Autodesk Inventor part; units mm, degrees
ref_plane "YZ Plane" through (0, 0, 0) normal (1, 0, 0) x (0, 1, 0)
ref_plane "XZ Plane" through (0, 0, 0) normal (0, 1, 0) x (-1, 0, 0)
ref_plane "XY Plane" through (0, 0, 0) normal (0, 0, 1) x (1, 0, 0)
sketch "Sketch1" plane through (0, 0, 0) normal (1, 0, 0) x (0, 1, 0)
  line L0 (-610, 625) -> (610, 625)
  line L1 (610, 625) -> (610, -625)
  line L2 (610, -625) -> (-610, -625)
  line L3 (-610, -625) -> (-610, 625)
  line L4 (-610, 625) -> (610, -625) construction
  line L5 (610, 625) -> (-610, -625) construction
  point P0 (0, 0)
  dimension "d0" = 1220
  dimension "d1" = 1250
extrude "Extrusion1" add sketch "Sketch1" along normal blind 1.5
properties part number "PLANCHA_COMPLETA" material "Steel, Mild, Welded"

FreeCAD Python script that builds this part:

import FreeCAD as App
import Part
import Sketcher

doc = App.newDocument("Part")
body = doc.addObject("PartDesign::Body", "Body")

# Sketch on YZ plane
sketch1 = body.newObject("Sketcher::SketchObject", "Sketch")
sketch1.AttachmentSupport = (doc.getObject("YZ_Plane"), [""])
sketch1.MapMode = "FlatFace"
sketch1.addGeometry([
    Part.LineSegment(App.Vector(610, 625, 0), App.Vector(-610, 625, 0)),
    Part.LineSegment(App.Vector(-610, 625, 0), App.Vector(-610, -625, 0)),
    Part.LineSegment(App.Vector(-610, -625, 0), App.Vector(610, -625, 0)),
    Part.LineSegment(App.Vector(610, -625, 0), App.Vector(610, 625, 0)),
], False)
sketch1.addConstraint([
    Sketcher.Constraint("Coincident", 0, 2, 1, 1),
    Sketcher.Constraint("Coincident", 1, 2, 2, 1),
    Sketcher.Constraint("Coincident", 2, 2, 3, 1),
    Sketcher.Constraint("Coincident", 3, 2, 0, 1),
    Sketcher.Constraint("Horizontal", 0),
    Sketcher.Constraint("Vertical", 1),
    Sketcher.Constraint("Horizontal", 2),
    Sketcher.Constraint("Vertical", 3),
    Sketcher.Constraint("Symmetric", 0, 2, 2, 2, -1, 1),
    Sketcher.Constraint("DistanceX", 0, 2, 0, 1, 1220.0),
    Sketcher.Constraint("DistanceY", 1, 2, 1, 1, 1250.0),
])
pad1 = body.newObject("PartDesign::Pad", "Pad")
pad1.Profile = sketch1
pad1.Length = 1.5

doc.recompute()
